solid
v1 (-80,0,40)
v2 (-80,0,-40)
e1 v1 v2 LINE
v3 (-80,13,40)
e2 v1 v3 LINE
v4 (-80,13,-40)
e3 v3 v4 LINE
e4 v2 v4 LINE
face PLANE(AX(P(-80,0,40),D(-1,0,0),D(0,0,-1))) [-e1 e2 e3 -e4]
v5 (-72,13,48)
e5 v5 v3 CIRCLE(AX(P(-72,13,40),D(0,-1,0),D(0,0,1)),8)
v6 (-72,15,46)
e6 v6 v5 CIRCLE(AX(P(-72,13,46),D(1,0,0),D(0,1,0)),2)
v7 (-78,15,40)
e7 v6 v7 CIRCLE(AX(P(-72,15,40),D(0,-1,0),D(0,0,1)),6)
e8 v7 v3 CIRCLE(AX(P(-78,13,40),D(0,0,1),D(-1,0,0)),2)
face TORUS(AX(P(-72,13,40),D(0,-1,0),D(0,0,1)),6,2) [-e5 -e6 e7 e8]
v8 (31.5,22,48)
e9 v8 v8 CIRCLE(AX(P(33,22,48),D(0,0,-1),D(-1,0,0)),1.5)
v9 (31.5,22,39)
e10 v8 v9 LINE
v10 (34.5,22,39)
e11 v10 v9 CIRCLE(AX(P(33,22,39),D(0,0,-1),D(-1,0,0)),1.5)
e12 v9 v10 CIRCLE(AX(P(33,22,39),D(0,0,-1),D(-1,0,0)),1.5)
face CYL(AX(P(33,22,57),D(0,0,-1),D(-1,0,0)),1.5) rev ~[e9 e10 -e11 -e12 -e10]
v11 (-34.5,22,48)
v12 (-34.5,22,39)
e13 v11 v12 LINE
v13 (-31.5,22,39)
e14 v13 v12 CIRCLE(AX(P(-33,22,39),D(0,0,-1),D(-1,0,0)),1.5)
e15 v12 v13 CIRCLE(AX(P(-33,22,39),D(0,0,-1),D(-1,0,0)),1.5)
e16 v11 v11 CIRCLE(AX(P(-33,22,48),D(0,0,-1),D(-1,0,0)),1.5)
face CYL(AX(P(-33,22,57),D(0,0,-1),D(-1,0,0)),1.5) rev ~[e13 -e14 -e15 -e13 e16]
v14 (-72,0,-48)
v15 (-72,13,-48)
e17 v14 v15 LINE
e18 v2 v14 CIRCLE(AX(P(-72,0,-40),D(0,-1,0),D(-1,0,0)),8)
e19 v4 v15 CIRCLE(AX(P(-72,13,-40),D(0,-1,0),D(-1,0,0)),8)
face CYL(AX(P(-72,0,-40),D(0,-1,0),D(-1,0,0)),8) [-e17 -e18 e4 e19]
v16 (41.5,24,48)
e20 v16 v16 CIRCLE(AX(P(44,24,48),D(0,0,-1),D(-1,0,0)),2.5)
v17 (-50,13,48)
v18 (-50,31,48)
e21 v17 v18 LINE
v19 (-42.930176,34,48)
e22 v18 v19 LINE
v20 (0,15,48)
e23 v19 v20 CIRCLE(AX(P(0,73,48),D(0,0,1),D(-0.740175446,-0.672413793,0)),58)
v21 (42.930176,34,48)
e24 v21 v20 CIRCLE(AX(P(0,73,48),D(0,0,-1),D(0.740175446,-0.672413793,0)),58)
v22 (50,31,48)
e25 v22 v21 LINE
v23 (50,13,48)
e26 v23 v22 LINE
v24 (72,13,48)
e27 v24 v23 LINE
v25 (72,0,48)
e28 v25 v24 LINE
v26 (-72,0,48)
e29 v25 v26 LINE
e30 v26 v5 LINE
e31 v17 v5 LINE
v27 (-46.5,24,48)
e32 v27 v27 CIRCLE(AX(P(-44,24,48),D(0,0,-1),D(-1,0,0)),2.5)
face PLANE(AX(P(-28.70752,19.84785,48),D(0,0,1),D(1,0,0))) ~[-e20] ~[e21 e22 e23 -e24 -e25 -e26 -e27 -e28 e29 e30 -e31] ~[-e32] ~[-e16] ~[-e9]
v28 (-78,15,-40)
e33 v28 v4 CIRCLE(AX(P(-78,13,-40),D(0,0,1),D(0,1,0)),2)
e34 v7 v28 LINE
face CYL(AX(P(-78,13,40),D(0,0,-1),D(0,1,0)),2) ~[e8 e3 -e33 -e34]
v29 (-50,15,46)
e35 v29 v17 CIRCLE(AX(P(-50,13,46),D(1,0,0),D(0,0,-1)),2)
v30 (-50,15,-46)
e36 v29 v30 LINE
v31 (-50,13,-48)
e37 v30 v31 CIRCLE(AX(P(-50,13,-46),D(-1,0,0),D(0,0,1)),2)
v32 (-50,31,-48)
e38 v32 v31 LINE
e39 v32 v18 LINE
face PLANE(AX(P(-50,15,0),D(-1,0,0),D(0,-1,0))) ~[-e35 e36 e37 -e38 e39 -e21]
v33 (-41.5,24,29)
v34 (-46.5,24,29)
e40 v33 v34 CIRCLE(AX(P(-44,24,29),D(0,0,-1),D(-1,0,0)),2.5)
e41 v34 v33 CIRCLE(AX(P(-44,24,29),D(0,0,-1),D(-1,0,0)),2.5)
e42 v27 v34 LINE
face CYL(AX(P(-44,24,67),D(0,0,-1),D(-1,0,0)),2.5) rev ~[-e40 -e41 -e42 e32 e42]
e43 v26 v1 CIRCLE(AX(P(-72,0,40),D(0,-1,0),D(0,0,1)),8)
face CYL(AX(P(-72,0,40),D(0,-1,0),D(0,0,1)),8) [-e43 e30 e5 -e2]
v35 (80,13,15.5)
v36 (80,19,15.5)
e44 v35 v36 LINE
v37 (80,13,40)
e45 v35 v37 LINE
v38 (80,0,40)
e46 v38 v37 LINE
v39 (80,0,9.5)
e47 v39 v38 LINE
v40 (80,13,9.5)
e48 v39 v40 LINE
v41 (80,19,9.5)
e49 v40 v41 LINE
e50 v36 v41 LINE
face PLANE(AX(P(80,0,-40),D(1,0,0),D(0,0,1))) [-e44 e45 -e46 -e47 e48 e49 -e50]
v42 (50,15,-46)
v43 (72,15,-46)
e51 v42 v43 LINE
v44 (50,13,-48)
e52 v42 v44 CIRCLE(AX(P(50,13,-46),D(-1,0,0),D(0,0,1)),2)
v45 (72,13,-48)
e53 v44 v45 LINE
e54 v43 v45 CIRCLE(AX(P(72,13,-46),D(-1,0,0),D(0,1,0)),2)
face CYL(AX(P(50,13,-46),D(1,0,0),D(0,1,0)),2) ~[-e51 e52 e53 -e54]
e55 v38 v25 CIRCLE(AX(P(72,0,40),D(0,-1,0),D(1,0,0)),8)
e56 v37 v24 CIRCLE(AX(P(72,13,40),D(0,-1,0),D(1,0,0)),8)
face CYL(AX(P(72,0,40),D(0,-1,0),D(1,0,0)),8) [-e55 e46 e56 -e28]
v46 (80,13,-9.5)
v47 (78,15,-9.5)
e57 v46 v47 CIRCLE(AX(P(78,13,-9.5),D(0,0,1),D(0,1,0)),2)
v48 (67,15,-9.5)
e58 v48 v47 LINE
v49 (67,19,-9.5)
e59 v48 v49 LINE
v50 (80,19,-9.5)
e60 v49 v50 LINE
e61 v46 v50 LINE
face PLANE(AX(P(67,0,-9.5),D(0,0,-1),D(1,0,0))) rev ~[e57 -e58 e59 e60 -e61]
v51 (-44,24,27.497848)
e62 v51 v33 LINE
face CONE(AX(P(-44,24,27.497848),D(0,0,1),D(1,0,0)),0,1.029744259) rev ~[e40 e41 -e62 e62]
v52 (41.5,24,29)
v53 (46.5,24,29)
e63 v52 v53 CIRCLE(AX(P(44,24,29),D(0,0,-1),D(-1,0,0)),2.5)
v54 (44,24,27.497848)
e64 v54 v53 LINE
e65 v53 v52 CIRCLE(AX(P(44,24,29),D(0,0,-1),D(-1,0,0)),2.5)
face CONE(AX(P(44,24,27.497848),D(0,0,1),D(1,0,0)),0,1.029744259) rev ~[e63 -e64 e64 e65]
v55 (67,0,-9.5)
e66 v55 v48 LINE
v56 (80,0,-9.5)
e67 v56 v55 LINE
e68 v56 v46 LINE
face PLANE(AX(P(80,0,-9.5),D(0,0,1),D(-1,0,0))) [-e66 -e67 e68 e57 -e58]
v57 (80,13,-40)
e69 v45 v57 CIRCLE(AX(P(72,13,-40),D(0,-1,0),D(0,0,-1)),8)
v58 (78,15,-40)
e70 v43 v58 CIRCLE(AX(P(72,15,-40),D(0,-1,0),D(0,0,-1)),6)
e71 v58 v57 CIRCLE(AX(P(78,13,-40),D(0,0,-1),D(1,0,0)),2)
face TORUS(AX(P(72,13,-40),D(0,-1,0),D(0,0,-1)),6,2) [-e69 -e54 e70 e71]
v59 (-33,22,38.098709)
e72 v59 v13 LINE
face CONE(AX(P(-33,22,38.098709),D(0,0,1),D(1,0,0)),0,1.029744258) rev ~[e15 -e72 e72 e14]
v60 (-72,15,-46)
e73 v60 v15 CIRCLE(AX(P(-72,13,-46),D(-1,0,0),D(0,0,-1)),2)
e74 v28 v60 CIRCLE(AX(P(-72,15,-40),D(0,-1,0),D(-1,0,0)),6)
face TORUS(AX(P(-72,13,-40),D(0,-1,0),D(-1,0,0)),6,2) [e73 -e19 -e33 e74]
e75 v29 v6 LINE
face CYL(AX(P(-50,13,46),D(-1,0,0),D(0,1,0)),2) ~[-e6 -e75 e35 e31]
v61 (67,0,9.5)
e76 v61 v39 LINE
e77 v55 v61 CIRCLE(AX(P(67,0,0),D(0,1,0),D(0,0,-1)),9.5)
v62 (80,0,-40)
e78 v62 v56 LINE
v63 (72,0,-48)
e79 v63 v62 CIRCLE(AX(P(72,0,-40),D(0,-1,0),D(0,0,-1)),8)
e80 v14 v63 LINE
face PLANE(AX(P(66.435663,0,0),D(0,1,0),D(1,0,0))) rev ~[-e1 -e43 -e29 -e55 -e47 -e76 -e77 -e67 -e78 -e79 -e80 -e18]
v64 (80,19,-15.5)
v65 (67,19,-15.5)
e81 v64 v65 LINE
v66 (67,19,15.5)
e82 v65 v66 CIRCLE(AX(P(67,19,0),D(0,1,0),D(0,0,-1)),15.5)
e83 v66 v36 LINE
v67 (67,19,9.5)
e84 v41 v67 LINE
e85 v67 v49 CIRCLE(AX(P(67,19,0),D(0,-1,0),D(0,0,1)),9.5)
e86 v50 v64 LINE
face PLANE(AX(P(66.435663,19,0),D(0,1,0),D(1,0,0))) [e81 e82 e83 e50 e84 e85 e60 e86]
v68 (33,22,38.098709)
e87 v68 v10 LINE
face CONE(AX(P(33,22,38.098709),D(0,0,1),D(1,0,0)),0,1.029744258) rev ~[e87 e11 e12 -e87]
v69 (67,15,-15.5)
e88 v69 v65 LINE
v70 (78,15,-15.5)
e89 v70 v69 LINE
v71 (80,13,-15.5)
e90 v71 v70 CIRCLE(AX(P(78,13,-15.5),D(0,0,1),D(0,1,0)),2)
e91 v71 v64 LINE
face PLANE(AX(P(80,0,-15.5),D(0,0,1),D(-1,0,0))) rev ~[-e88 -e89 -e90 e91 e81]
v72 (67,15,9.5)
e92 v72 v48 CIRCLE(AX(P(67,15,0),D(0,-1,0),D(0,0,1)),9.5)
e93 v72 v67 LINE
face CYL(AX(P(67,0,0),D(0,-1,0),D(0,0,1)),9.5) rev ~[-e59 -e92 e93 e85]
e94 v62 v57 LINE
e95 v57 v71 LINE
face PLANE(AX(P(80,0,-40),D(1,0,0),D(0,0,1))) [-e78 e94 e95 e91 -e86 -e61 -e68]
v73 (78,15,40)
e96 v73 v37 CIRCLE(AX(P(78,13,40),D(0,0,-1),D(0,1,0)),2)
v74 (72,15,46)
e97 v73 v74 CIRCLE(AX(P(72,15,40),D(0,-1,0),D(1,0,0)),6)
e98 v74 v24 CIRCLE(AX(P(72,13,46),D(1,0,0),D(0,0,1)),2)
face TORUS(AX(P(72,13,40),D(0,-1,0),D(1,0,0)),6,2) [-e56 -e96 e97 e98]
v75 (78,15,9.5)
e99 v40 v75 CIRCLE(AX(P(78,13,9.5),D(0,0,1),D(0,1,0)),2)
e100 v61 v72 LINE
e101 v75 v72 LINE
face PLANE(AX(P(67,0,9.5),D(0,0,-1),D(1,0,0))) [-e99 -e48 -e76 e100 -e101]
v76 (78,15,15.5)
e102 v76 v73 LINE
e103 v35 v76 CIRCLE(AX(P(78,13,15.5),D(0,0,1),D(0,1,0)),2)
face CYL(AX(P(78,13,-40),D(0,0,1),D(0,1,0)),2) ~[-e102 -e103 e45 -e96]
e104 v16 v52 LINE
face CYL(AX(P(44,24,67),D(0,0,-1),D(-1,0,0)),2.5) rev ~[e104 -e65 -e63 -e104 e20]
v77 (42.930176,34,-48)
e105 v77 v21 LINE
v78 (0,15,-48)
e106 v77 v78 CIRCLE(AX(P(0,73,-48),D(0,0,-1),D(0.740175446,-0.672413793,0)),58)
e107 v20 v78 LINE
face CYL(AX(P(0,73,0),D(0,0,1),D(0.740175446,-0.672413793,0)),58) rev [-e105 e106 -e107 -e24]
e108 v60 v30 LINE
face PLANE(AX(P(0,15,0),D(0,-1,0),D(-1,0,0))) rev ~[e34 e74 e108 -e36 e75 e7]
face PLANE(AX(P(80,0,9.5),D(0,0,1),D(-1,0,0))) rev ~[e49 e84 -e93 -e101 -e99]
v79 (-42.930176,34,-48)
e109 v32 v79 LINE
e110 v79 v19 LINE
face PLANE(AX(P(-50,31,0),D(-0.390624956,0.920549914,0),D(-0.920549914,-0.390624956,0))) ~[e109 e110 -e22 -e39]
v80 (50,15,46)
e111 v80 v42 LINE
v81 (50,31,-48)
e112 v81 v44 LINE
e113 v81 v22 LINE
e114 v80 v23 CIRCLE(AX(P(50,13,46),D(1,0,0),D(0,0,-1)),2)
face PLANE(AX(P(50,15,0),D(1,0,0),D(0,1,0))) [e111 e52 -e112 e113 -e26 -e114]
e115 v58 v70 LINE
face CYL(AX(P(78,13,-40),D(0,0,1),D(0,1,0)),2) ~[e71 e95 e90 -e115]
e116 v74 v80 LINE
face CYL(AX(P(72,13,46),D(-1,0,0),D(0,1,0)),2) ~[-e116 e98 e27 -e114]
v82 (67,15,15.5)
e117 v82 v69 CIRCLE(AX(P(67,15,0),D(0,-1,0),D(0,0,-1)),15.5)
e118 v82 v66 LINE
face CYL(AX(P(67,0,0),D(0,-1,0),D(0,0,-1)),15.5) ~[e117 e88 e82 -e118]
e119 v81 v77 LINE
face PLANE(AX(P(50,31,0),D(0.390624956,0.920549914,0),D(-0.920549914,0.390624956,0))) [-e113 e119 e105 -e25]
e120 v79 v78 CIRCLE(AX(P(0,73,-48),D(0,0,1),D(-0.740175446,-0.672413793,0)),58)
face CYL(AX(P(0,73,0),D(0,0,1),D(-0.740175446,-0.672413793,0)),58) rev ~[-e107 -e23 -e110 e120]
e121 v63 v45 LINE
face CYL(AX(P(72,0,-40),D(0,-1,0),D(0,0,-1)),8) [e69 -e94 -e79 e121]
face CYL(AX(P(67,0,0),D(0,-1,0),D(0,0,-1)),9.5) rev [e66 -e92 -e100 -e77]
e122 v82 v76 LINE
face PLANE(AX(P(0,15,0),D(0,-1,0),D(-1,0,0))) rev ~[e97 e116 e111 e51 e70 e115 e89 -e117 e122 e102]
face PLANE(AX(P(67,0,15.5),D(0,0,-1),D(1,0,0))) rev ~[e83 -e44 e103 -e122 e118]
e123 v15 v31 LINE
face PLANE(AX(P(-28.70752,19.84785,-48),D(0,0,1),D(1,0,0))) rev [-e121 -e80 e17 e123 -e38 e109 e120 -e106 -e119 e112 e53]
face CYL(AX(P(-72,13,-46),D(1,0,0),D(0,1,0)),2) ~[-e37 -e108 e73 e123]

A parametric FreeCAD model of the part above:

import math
import FreeCAD as App
import Part
import Sketcher

V = App.Vector


def edges_at(feature, points):
    """Names of the edges that pass closest to the given points."""
    edges = feature.Shape.Edges
    near = lambda p: min(range(len(edges)), key=lambda i: edges[i].distToShape(Part.Vertex(*p))[0])
    return sorted({f"Edge{near(p) + 1}" for p in points})

doc = App.newDocument("Part")
body = doc.addObject("PartDesign::Body", "Body")

# Sketch on XZ plane
sketch1 = body.newObject("Sketcher::SketchObject", "Sketch")
sketch1.AttachmentSupport = (doc.getObject("XZ_Plane"), [""])
sketch1.MapMode = "FlatFace"
sketch1.addGeometry([
    Part.LineSegment(V(72, -48, 0), V(-72, -48, 0)),  # 0
    Part.ArcOfCircle(Part.Circle(V(-72, -40, 0), V(0, 0, 1), 8), math.radians(-180), math.radians(-90)),  # 1
    Part.LineSegment(V(-80, -40, 0), V(-80, 40, 0)),  # 2
    Part.ArcOfCircle(Part.Circle(V(-72, 40, 0), V(0, 0, 1), 8), math.radians(90), math.radians(180)),  # 3
    Part.LineSegment(V(-72, 48, 0), V(72, 48, 0)),  # 4
    Part.ArcOfCircle(Part.Circle(V(72, 40, 0), V(0, 0, 1), 8), math.radians(0), math.radians(90)),  # 5
    Part.LineSegment(V(80, 40, 0), V(80, -40, 0)),  # 6
    Part.ArcOfCircle(Part.Circle(V(72, -40, 0), V(0, 0, 1), 8), math.radians(-90), math.radians(0)),  # 7
], False)
sketch1.addConstraint([
    Sketcher.Constraint("Tangent", 0, 2, 1, 2),
    Sketcher.Constraint("Tangent", 1, 1, 2, 1),
    Sketcher.Constraint("Tangent", 2, 2, 3, 2),
    Sketcher.Constraint("Tangent", 3, 1, 4, 1),
    Sketcher.Constraint("Tangent", 4, 2, 5, 2),
    Sketcher.Constraint("Tangent", 5, 1, 6, 1),
    Sketcher.Constraint("Tangent", 6, 2, 7, 2),
    Sketcher.Constraint("Tangent", 7, 1, 0, 1),
    Sketcher.Constraint("Horizontal", 0),
    Sketcher.Constraint("Vertical", 2),
    Sketcher.Constraint("Horizontal", 4),
    Sketcher.Constraint("Vertical", 6),
    Sketcher.Constraint("Equal", 1, 3),
    Sketcher.Constraint("Equal", 3, 5),
    Sketcher.Constraint("Equal", 5, 7),
    Sketcher.Constraint("Symmetric", 1, 3, 5, 3, -1, 1),
    Sketcher.Constraint("Radius", 1, 8.0),
    Sketcher.Constraint("DistanceX", 0, 2, 0, 1, 144.0),
    Sketcher.Constraint("DistanceY", 2, 1, 2, 2, 80.0),
])
pad1 = body.newObject("PartDesign::Pad", "Pad")
pad1.Profile = sketch1
pad1.Length = 15
pad1.Reversed = True

# Sketch on XY plane
sketch2 = body.newObject("Sketcher::SketchObject", "Sketch001")
sketch2.AttachmentSupport = (doc.getObject("XY_Plane"), [""])
sketch2.MapMode = "FlatFace"
sketch2.addGeometry([
    Part.LineSegment(V(50, 15, 0), V(50, 31, 0)),
    Part.LineSegment(V(50, 31, 0), V(43, 34, 0)),
    Part.ArcOfCircle(Part.Circle(V(0, 73, 0), V(0, 0, 1), 58), math.radians(-90), math.radians(-42)),
    Part.LineSegment(V(0, 15, 0), V(50, 15, 0)),
], False)
sketch2.addConstraint([
    Sketcher.Constraint("Coincident", 0, 2, 1, 1),
    Sketcher.Constraint("Coincident", 1, 2, 2, 2),
    Sketcher.Constraint("Tangent", 2, 1, 3, 1),
    Sketcher.Constraint("Coincident", 3, 2, 0, 1),
    Sketcher.Constraint("Vertical", 0),
    Sketcher.Constraint("Horizontal", 3),
    Sketcher.Constraint("PointOnObject", 2, 3, -2),
    Sketcher.Constraint("Radius", 2, 58.0),
    Sketcher.Constraint("DistanceX", 3, 1, 3, 2, 50.0),
    Sketcher.Constraint("DistanceY", 0, 1, 0, 2, 16.0),
    Sketcher.Constraint("DistanceY", -1, 1, 2, 3, 73.0),
    Sketcher.Constraint("DistanceY", -1, 1, 1, 2, 34.0),
])
pad2 = body.newObject("PartDesign::Pad", "Pad001")
pad2.Profile = sketch2
pad2.Length = 96
pad2.Midplane = True
doc.recompute()

mirrored = body.newObject("PartDesign::Mirrored", "Mirrored")
mirrored.Originals = [pad2]
mirrored.MirrorPlane = (doc.getObject("YZ_Plane"), [""])
body.Tip = mirrored

# Sketch on XY plane
sketch3 = body.newObject("Sketcher::SketchObject", "Sketch002")
sketch3.AttachmentSupport = (doc.getObject("XY_Plane"), [""])
sketch3.MapMode = "FlatFace"
sketch3.AttachmentOffset = App.Placement(V(0, 0, 48), App.Rotation())
sketch3.addGeometry([
    Part.Circle(V(44, 24, 0), V(0, 0, 1), 2.5),
    Part.Circle(V(-44, 24, 0), V(0, 0, 1), 2.5),
], False)
sketch3.addConstraint([
    Sketcher.Constraint("Equal", 0, 1),
    Sketcher.Constraint("Symmetric", 0, 3, 1, 3, -2),
    Sketcher.Constraint("Diameter", 0, 5.0),
    Sketcher.Constraint("DistanceX", -1, 1, 0, 3, 44.0),
    Sketcher.Constraint("DistanceY", -1, 1, 0, 3, 24.0),
])
doc.recompute()
hole = body.newObject("PartDesign::Hole", "Hole")
hole.Profile = sketch3
hole.ThreadType = "None"
hole.Diameter = 5
hole.DepthType = "Dimension"
hole.Depth = 19
hole.DrillPoint = "Angled"
hole.DrillPointAngle = 118

# Sketch on XY plane
sketch4 = body.newObject("Sketcher::SketchObject", "Sketch003")
sketch4.AttachmentSupport = (doc.getObject("XY_Plane"), [""])
sketch4.MapMode = "FlatFace"
sketch4.AttachmentOffset = App.Placement(V(0, 0, 48), App.Rotation())
sketch4.addGeometry([
    Part.Circle(V(33, 22, 0), V(0, 0, 1), 1.5),
    Part.Circle(V(-33, 22, 0), V(0, 0, 1), 1.5),
], False)
sketch4.addConstraint([
    Sketcher.Constraint("Equal", 0, 1),
    Sketcher.Constraint("Symmetric", 0, 3, 1, 3, -2),
    Sketcher.Constraint("Diameter", 0, 3.0),
    Sketcher.Constraint("DistanceX", -1, 1, 0, 3, 33.0),
    Sketcher.Constraint("DistanceY", -1, 1, 0, 3, 22.0),
])
doc.recompute()
hole2 = body.newObject("PartDesign::Hole", "Hole001")
hole2.Profile = sketch4
hole2.ThreadType = "None"
hole2.Diameter = 3
hole2.DepthType = "Dimension"
hole2.Depth = 9
hole2.DrillPoint = "Angled"
hole2.DrillPointAngle = 118
doc.recompute()

fillet = body.newObject("PartDesign::Fillet", "Fillet")
fillet.Base = (hole2, edges_at(hole2, [
    (-77.657, 15, -45.657),
    (-80, 15, 0),
    (-77.657, 15, 45.657),
    (-61, 15, 48),
    (77.657, 15, 45.657),
    (61, 15, 48),
    (80, 15, 0),
    (-61, 15, -48),
    (77.657, 15, -45.657),
    (61, 15, -48),
]))
fillet.Radius = 2

# Sketch on XZ plane
sketch5 = body.newObject("Sketcher::SketchObject", "Sketch004")
sketch5.AttachmentSupport = (doc.getObject("XZ_Plane"), [""])
sketch5.MapMode = "FlatFace"
sketch5.addGeometry([
    Part.LineSegment(V(67, -10, 0), V(80, -10, 0)),  # 0
    Part.LineSegment(V(80, -10, 0), V(80, -16, 0)),  # 1
    Part.LineSegment(V(80, -16, 0), V(67, -16, 0)),  # 2
    Part.ArcOfCircle(Part.Circle(V(67, 0, 0), V(0, 0, 1), 16), math.radians(90), math.radians(270)),  # 3
    Part.LineSegment(V(67, 16, 0), V(80, 16, 0)),  # 4
    Part.LineSegment(V(80, 16, 0), V(80, 10, 0)),  # 5
    Part.LineSegment(V(80, 10, 0), V(67, 10, 0)),  # 6
    Part.ArcOfCircle(Part.Circle(V(67, 0, 0), V(0, 0, 1), 10), math.radians(90), math.radians(270)),  # 7
], False)
sketch5.addConstraint([
    Sketcher.Constraint("Coincident", 0, 2, 1, 1),
    Sketcher.Constraint("Coincident", 1, 2, 2, 1),
    Sketcher.Constraint("Tangent", 2, 2, 3, 2),
    Sketcher.Constraint("Tangent", 3, 1, 4, 1),
    Sketcher.Constraint("Coincident", 4, 2, 5, 1),
    Sketcher.Constraint("Coincident", 5, 2, 6, 1),
    Sketcher.Constraint("Tangent", 6, 2, 7, 1),
    Sketcher.Constraint("Tangent", 7, 2, 0, 1),
    Sketcher.Constraint("Horizontal", 0),
    Sketcher.Constraint("Vertical", 1),
    Sketcher.Constraint("Horizontal", 2),
    Sketcher.Constraint("Horizontal", 4),
    Sketcher.Constraint("Vertical", 5),
    Sketcher.Constraint("Horizontal", 6),
    Sketcher.Constraint("Coincident", 7, 3, 3, 3),
    Sketcher.Constraint("Symmetric", 1, 2, 4, 2, -1),
    Sketcher.Constraint("Radius", 3, 15.5),
    Sketcher.Constraint("Radius", 7, 9.5),
    Sketcher.Constraint("DistanceX", 0, 1, 0, 2, 13.0),
    Sketcher.Constraint("DistanceX", -1, 1, 3, 3, 67.0),
])
pad3 = body.newObject("PartDesign::Pad", "Pad002")
pad3.Profile = sketch5
pad3.Length = 19
pad3.Reversed = True

# Sketch on XZ plane
sketch6 = body.newObject("Sketcher::SketchObject", "Sketch005")
sketch6.AttachmentSupport = (doc.getObject("XZ_Plane"), [""])
sketch6.MapMode = "FlatFace"
sketch6.addGeometry([
    Part.LineSegment(V(80, 10, 0), V(80, -10, 0)),
    Part.LineSegment(V(80, -10, 0), V(67, -10, 0)),
    Part.ArcOfCircle(Part.Circle(V(67, 0, 0), V(0, 0, 1), 10), math.radians(90), math.radians(270)),
    Part.LineSegment(V(67, 10, 0), V(80, 10, 0)),
], False)
sketch6.addConstraint([
    Sketcher.Constraint("Coincident", 0, 2, 1, 1),
    Sketcher.Constraint("Tangent", 1, 2, 2, 2),
    Sketcher.Constraint("Tangent", 2, 1, 3, 1),
    Sketcher.Constraint("Coincident", 3, 2, 0, 1),
    Sketcher.Constraint("Vertical", 0),
    Sketcher.Constraint("Horizontal", 1),
    Sketcher.Constraint("Horizontal", 3),
    Sketcher.Constraint("PointOnObject", 2, 3, -1),
    Sketcher.Constraint("Radius", 2, 9.5),
    Sketcher.Constraint("DistanceX", 1, 2, 1, 1, 13.0),
    Sketcher.Constraint("DistanceX", -1, 1, 2, 3, 67.0),
])
pocket1 = body.newObject("PartDesign::Pocket", "Pocket")
pocket1.Profile = sketch6
pocket1.Type = "ThroughAll"

doc.recompute()
